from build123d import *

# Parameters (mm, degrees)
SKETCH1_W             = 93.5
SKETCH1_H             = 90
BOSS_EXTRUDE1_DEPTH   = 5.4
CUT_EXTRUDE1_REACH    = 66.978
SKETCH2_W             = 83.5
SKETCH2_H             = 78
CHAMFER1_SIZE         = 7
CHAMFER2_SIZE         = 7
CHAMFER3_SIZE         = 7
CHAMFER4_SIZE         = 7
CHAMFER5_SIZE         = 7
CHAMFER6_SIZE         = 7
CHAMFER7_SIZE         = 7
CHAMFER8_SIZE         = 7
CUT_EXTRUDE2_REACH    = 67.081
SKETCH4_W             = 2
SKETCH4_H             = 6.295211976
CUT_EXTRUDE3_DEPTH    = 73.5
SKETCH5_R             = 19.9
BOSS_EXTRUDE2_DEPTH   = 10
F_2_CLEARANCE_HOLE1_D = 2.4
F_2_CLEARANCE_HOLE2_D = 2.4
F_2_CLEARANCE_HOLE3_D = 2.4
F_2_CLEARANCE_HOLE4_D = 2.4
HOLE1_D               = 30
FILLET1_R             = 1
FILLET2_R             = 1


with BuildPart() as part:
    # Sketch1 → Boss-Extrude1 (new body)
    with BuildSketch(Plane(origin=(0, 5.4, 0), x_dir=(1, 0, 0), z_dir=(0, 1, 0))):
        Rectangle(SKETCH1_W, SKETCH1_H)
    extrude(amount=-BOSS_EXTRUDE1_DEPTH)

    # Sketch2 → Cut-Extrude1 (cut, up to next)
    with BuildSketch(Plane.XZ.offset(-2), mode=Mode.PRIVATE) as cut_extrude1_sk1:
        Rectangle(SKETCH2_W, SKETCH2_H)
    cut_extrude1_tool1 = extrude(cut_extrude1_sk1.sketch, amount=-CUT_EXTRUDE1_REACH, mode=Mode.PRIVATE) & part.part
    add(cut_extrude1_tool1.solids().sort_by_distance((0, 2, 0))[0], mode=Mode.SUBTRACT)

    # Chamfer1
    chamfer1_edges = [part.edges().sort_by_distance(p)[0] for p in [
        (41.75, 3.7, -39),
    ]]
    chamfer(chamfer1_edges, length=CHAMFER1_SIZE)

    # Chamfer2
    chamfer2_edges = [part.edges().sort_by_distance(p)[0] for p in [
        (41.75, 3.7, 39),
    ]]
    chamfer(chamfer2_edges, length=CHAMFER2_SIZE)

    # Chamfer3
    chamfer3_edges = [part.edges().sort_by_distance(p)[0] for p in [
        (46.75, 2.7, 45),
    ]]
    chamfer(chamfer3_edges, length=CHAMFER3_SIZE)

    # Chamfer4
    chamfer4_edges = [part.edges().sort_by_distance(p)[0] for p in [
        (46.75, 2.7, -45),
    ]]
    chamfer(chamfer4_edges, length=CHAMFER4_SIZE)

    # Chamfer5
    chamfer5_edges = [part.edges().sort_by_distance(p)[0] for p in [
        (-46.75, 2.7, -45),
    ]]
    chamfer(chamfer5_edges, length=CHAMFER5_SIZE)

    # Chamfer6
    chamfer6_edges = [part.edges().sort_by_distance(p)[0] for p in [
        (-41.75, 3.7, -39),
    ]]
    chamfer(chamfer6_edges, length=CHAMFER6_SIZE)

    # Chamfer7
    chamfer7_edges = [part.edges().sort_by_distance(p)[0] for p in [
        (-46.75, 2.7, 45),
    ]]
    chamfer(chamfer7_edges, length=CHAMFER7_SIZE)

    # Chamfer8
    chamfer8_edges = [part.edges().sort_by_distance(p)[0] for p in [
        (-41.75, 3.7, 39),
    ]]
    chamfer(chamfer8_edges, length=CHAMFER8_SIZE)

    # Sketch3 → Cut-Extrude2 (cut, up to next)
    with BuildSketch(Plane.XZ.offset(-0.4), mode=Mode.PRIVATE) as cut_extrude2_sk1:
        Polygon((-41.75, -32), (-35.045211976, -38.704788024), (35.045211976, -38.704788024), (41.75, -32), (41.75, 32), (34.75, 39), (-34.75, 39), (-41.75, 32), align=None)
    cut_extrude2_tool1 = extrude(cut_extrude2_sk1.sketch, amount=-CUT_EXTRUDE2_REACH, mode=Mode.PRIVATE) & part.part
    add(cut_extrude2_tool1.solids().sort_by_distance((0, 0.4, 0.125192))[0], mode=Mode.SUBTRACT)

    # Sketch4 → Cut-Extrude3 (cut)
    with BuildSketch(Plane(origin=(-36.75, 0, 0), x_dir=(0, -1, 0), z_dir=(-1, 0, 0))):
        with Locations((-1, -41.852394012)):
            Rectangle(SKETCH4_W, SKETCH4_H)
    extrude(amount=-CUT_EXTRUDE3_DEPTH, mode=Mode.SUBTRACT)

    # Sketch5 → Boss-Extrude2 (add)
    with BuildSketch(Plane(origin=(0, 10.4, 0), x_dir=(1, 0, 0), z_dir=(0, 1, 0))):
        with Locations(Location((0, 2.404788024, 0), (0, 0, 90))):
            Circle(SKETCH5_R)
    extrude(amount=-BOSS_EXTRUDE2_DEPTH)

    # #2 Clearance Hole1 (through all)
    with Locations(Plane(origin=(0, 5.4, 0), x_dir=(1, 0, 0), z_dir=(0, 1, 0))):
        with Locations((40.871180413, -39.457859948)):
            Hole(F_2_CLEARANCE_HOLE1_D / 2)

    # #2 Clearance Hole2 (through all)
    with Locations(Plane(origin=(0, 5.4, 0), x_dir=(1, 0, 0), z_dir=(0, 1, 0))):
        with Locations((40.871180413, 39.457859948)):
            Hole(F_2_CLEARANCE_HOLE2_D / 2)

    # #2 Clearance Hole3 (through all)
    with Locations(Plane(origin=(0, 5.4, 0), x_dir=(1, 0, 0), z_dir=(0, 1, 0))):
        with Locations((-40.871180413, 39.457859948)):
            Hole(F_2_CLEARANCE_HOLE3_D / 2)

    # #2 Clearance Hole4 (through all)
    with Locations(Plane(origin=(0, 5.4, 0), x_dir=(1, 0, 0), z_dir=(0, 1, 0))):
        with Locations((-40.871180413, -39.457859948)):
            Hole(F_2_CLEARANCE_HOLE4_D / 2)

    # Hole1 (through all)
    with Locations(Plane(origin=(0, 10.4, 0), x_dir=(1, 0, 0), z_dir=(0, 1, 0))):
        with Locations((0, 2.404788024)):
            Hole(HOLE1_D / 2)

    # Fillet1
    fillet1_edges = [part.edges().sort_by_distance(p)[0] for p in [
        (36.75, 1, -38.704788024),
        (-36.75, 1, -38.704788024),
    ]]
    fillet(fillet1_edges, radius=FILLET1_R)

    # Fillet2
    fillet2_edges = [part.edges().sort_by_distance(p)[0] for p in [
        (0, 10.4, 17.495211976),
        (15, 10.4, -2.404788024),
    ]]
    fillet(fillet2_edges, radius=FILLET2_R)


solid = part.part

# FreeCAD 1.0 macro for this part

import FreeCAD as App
import Part
import Sketcher

V = App.Vector
Q = App.Units.Quantity


def edges_at(feature, points):
    """Names of the edges that pass closest to the given points."""
    edges = feature.Shape.Edges
    near = lambda p: min(range(len(edges)), key=lambda i: edges[i].distToShape(Part.Vertex(*p))[0])
    return sorted({f"Edge{near(p) + 1}" for p in points})


def add_polygon(sketch, points):
    """Adds a closed chain of lines whose ends are joined by coincident constraints."""
    first, n = sketch.GeometryCount, len(points)
    for a, b in zip(points, points[1:] + points[:1]):
        sketch.addGeometry(Part.LineSegment(App.Vector(*a, 0), App.Vector(*b, 0)), False)
    for i in range(n):
        sketch.addConstraint(Sketcher.Constraint("Coincident", first + i, 2, first + (i + 1) % n, 1))

doc = App.newDocument("Part")
body = doc.addObject("PartDesign::Body", "Body")

sketch1 = body.newObject("Sketcher::SketchObject", "Sketch")
sketch1.AttachmentSupport = (doc.getObject("XZ_Plane"), [""])
sketch1.MapMode = "FlatFace"
sketch1.AttachmentOffset = App.Placement(V(0, 0, -5.4), App.Rotation())
add_polygon(sketch1, [(-47, -45), (-47, 45), (47, 45), (47, -45)])
sketch1.addConstraint(Sketcher.Constraint("Vertical", 0))
sketch1.addConstraint(Sketcher.Constraint("Horizontal", 1))
sketch1.addConstraint(Sketcher.Constraint("Vertical", 2))
sketch1.addConstraint(Sketcher.Constraint("Horizontal", 3))
sketch1.addConstraint(Sketcher.Constraint("Symmetric", 0, 2, 2, 2, -1, 1))
sketch1.addConstraint(Sketcher.Constraint("DistanceY", 0, 1, 0, 2, Q("90 mm")))
sketch1.addConstraint(Sketcher.Constraint("DistanceX", 1, 1, 1, 2, Q("93.5 mm")))
pad1 = body.newObject("PartDesign::Pad", "Pad")
pad1.Profile = sketch1
pad1.Length = 5.4

sketch2 = body.newObject("Sketcher::SketchObject", "Sketch001")
sketch2.AttachmentSupport = (doc.getObject("XZ_Plane"), [""])
sketch2.MapMode = "FlatFace"
sketch2.AttachmentOffset = App.Placement(V(0, 0, -2), App.Rotation())
add_polygon(sketch2, [(-42, 39), (-42, -39), (42, -39), (42, 39)])
sketch2.addConstraint(Sketcher.Constraint("Vertical", 0))
sketch2.addConstraint(Sketcher.Constraint("Horizontal", 1))
sketch2.addConstraint(Sketcher.Constraint("Vertical", 2))
sketch2.addConstraint(Sketcher.Constraint("Horizontal", 3))
sketch2.addConstraint(Sketcher.Constraint("Symmetric", 0, 2, 2, 2, -1, 1))
sketch2.addConstraint(Sketcher.Constraint("DistanceY", 0, 2, 0, 1, Q("78 mm")))
sketch2.addConstraint(Sketcher.Constraint("DistanceX", 1, 1, 1, 2, Q("83.5 mm")))
pocket1 = body.newObject("PartDesign::Pocket", "Pocket")
pocket1.Profile = sketch2
pocket1.Type = "UpToFirst"
doc.recompute()

chamfer = body.newObject("PartDesign::Chamfer", "Chamfer")
chamfer.Base = (pocket1, edges_at(pocket1, [(41.75, 3.7, -39)]))
chamfer.Size = 7
doc.recompute()

chamfer2 = body.newObject("PartDesign::Chamfer", "Chamfer001")
chamfer2.Base = (chamfer, edges_at(chamfer, [(41.75, 3.7, 39)]))
chamfer2.Size = 7
doc.recompute()

chamfer3 = body.newObject("PartDesign::Chamfer", "Chamfer002")
chamfer3.Base = (chamfer2, edges_at(chamfer2, [(46.75, 2.7, 45)]))
chamfer3.Size = 7
doc.recompute()

chamfer4 = body.newObject("PartDesign::Chamfer", "Chamfer003")
chamfer4.Base = (chamfer3, edges_at(chamfer3, [(46.75, 2.7, -45)]))
chamfer4.Size = 7
doc.recompute()

chamfer5 = body.newObject("PartDesign::Chamfer", "Chamfer004")
chamfer5.Base = (chamfer4, edges_at(chamfer4, [(-46.75, 2.7, -45)]))
chamfer5.Size = 7
doc.recompute()

chamfer6 = body.newObject("PartDesign::Chamfer", "Chamfer005")
chamfer6.Base = (chamfer5, edges_at(chamfer5, [(-41.75, 3.7, -39)]))
chamfer6.Size = 7
doc.recompute()

chamfer7 = body.newObject("PartDesign::Chamfer", "Chamfer006")
chamfer7.Base = (chamfer6, edges_at(chamfer6, [(-46.75, 2.7, 45)]))
chamfer7.Size = 7
doc.recompute()

chamfer8 = body.newObject("PartDesign::Chamfer", "Chamfer007")
chamfer8.Base = (chamfer7, edges_at(chamfer7, [(-41.75, 3.7, 39)]))
chamfer8.Size = 7

sketch3 = body.newObject("Sketcher::SketchObject", "Sketch002")
sketch3.AttachmentSupport = (doc.getObject("XZ_Plane"), [""])
sketch3.MapMode = "FlatFace"
sketch3.AttachmentOffset = App.Placement(V(0, 0, -0.4), App.Rotation())
add_polygon(sketch3, [(-42, -32), (-35, -39), (35, -39), (42, -32), (42, 32), (35, 39), (-35, 39), (-42, 32)])
sketch3.addConstraint(Sketcher.Constraint("Horizontal", 1))
sketch3.addConstraint(Sketcher.Constraint("Vertical", 3))
sketch3.addConstraint(Sketcher.Constraint("Horizontal", 5))
sketch3.addConstraint(Sketcher.Constraint("Vertical", 7))
sketch3.addConstraint(Sketcher.Constraint("Symmetric", 2, 2, 6, 2, -1, 1))
sketch3.addConstraint(Sketcher.Constraint("Perpendicular", 0, 2))
sketch3.addConstraint(Sketcher.Constraint("Perpendicular", 2, 4))
sketch3.addConstraint(Sketcher.Constraint("Perpendicular", 4, 6))
sketch3.addConstraint(Sketcher.Constraint("Horizontal", 3, 2, 6, 2))
sketch3.addConstraint(Sketcher.Constraint("Horizontal", 2, 2, 7, 2))
sketch3.addConstraint(Sketcher.Constraint("Equal", 0, 2))
sketch3.addConstraint(Sketcher.Constraint("DistanceY", 3, 1, 3, 2, Q("64 mm")))
sketch3.addConstraint(Sketcher.Constraint("DistanceX", 5, 2, 5, 1, Q("69.5 mm")))
sketch3.addConstraint(Sketcher.Constraint("DistanceY", -1, 1, 4, 2, Q("39 mm")))
sketch3.addConstraint(Sketcher.Constraint("DistanceX", 1, 1, 1, 2, Q("70.090424 mm")))
pocket2 = body.newObject("PartDesign::Pocket", "Pocket001")
pocket2.Profile = sketch3
pocket2.Type = "UpToFirst"

sketch4 = body.newObject("Sketcher::SketchObject", "Sketch003")
sketch4.AttachmentSupport = (doc.getObject("YZ_Plane"), [""])
sketch4.MapMode = "FlatFace"
sketch4.AttachmentOffset = App.Placement(V(0, 0, -36.75), App.Rotation())
add_polygon(sketch4, [(2, -38.7), (2, -45), (0, -45), (0, -38.7)])
sketch4.addConstraint(Sketcher.Constraint("Vertical", 0))
sketch4.addConstraint(Sketcher.Constraint("Horizontal", 1))
sketch4.addConstraint(Sketcher.Constraint("Vertical", 2))
sketch4.addConstraint(Sketcher.Constraint("Horizontal", 3))
sketch4.addConstraint(Sketcher.Constraint("PointOnObject", 1, 2, -2))
sketch4.addConstraint(Sketcher.Constraint("DistanceX", 1, 2, 1, 1, Q("2 mm")))
sketch4.addConstraint(Sketcher.Constraint("DistanceY", 0, 2, -1, 1, Q("45 mm")))
sketch4.addConstraint(Sketcher.Constraint("DistanceY", 0, 2, 0, 1, Q("6.295212 mm")))
pocket3 = body.newObject("PartDesign::Pocket", "Pocket002")
pocket3.Profile = sketch4
pocket3.Length = 73.5
pocket3.Reversed = True

sketch5 = body.newObject("Sketcher::SketchObject", "Sketch004")
sketch5.AttachmentSupport = (doc.getObject("XZ_Plane"), [""])
sketch5.MapMode = "FlatFace"
sketch5.AttachmentOffset = App.Placement(V(0, 0, -10.4), App.Rotation())
sketch5.addGeometry(Part.Circle(V(0, -2, 0), V(0, 0, 1), 20), False)
sketch5.addConstraint(Sketcher.Constraint("PointOnObject", 0, 3, -2))
sketch5.addConstraint(Sketcher.Constraint("Diameter", 0, Q("39.8 mm")))
sketch5.addConstraint(Sketcher.Constraint("DistanceY", 0, 3, -1, 1, Q("2.404788 mm")))
pad2 = body.newObject("PartDesign::Pad", "Pad001")
pad2.Profile = sketch5
pad2.Length = 10

sketch6 = body.newObject("Sketcher::SketchObject", "Sketch005")
sketch6.AttachmentSupport = (doc.getObject("XZ_Plane"), [""])
sketch6.MapMode = "FlatFace"
sketch6.AttachmentOffset = App.Placement(V(0, 0, -5.4), App.Rotation())
sketch6.addGeometry(Part.Circle(V(40.9, 39.5, 0), V(0, 0, 1), 1.2), False)
sketch6.addConstraint(Sketcher.Constraint("Diameter", 0, Q("2.4 mm")))
sketch6.addConstraint(Sketcher.Constraint("DistanceX", -1, 1, 0, 3, Q("40.87118 mm")))
sketch6.addConstraint(Sketcher.Constraint("DistanceY", -1, 1, 0, 3, Q("39.45786 mm")))
doc.recompute()
hole = body.newObject("PartDesign::Hole", "Hole")
hole.Profile = sketch6
hole.ThreadType = "None"
hole.Diameter = 2.4
hole.DepthType = "ThroughAll"
hole.Reversed = True

sketch7 = body.newObject("Sketcher::SketchObject", "Sketch006")
sketch7.AttachmentSupport = (doc.getObject("XZ_Plane"), [""])
sketch7.MapMode = "FlatFace"
sketch7.AttachmentOffset = App.Placement(V(0, 0, -5.4), App.Rotation())
sketch7.addGeometry(Part.Circle(V(40.9, -39.5, 0), V(0, 0, 1), 1.2), False)
sketch7.addConstraint(Sketcher.Constraint("Diameter", 0, Q("2.4 mm")))
sketch7.addConstraint(Sketcher.Constraint("DistanceX", -1, 1, 0, 3, Q("40.87118 mm")))
sketch7.addConstraint(Sketcher.Constraint("DistanceY", 0, 3, -1, 1, Q("39.45786 mm")))
doc.recompute()
hole2 = body.newObject("PartDesign::Hole", "Hole001")
hole2.Profile = sketch7
hole2.ThreadType = "None"
hole2.Diameter = 2.4
hole2.DepthType = "ThroughAll"
hole2.Reversed = True

sketch8 = body.newObject("Sketcher::SketchObject", "Sketch007")
sketch8.AttachmentSupport = (doc.getObject("XZ_Plane"), [""])
sketch8.MapMode = "FlatFace"
sketch8.AttachmentOffset = App.Placement(V(0, 0, -5.4), App.Rotation())
sketch8.addGeometry(Part.Circle(V(-40.9, -39.5, 0), V(0, 0, 1), 1.2), False)
sketch8.addConstraint(Sketcher.Constraint("Diameter", 0, Q("2.4 mm")))
sketch8.addConstraint(Sketcher.Constraint("DistanceX", 0, 3, -1, 1, Q("40.87118 mm")))
sketch8.addConstraint(Sketcher.Constraint("DistanceY", 0, 3, -1, 1, Q("39.45786 mm")))
doc.recompute()
hole3 = body.newObject("PartDesign::Hole", "Hole002")
hole3.Profile = sketch8
hole3.ThreadType = "None"
hole3.Diameter = 2.4
hole3.DepthType = "ThroughAll"
hole3.Reversed = True

sketch9 = body.newObject("Sketcher::SketchObject", "Sketch008")
sketch9.AttachmentSupport = (doc.getObject("XZ_Plane"), [""])
sketch9.MapMode = "FlatFace"
sketch9.AttachmentOffset = App.Placement(V(0, 0, -5.4), App.Rotation())
sketch9.addGeometry(Part.Circle(V(-40.9, 39.5, 0), V(0, 0, 1), 1.2), False)
sketch9.addConstraint(Sketcher.Constraint("Diameter", 0, Q("2.4 mm")))
sketch9.addConstraint(Sketcher.Constraint("DistanceX", 0, 3, -1, 1, Q("40.87118 mm")))
sketch9.addConstraint(Sketcher.Constraint("DistanceY", -1, 1, 0, 3, Q("39.45786 mm")))
doc.recompute()
hole4 = body.newObject("PartDesign::Hole", "Hole003")
hole4.Profile = sketch9
hole4.ThreadType = "None"
hole4.Diameter = 2.4
hole4.DepthType = "ThroughAll"
hole4.Reversed = True

sketch10 = body.newObject("Sketcher::SketchObject", "Sketch009")
sketch10.AttachmentSupport = (doc.getObject("XZ_Plane"), [""])
sketch10.MapMode = "FlatFace"
sketch10.AttachmentOffset = App.Placement(V(0, 0, -10.4), App.Rotation())
sketch10.addGeometry(Part.Circle(V(0, -2, 0), V(0, 0, 1), 15), False)
sketch10.addConstraint(Sketcher.Constraint("PointOnObject", 0, 3, -2))
sketch10.addConstraint(Sketcher.Constraint("Diameter", 0, Q("30 mm")))
sketch10.addConstraint(Sketcher.Constraint("DistanceY", 0, 3, -1, 1, Q("2.404788 mm")))
doc.recompute()
hole5 = body.newObject("PartDesign::Hole", "Hole004")
hole5.Profile = sketch10
hole5.ThreadType = "None"
hole5.Diameter = 30
hole5.DepthType = "ThroughAll"
hole5.Reversed = True
doc.recompute()

fillet = body.newObject("PartDesign::Fillet", "Fillet")
fillet.Base = (hole5, edges_at(hole5, [(36.75, 1, -38.705), (-36.75, 1, -38.705)]))
fillet.Radius = 1
doc.recompute()

fillet2 = body.newObject("PartDesign::Fillet", "Fillet001")
fillet2.Base = (fillet, edges_at(fillet, [(0, 10.4, 17.495), (15, 10.4, -2.405)]))
fillet2.Radius = 1

doc.recompute()
